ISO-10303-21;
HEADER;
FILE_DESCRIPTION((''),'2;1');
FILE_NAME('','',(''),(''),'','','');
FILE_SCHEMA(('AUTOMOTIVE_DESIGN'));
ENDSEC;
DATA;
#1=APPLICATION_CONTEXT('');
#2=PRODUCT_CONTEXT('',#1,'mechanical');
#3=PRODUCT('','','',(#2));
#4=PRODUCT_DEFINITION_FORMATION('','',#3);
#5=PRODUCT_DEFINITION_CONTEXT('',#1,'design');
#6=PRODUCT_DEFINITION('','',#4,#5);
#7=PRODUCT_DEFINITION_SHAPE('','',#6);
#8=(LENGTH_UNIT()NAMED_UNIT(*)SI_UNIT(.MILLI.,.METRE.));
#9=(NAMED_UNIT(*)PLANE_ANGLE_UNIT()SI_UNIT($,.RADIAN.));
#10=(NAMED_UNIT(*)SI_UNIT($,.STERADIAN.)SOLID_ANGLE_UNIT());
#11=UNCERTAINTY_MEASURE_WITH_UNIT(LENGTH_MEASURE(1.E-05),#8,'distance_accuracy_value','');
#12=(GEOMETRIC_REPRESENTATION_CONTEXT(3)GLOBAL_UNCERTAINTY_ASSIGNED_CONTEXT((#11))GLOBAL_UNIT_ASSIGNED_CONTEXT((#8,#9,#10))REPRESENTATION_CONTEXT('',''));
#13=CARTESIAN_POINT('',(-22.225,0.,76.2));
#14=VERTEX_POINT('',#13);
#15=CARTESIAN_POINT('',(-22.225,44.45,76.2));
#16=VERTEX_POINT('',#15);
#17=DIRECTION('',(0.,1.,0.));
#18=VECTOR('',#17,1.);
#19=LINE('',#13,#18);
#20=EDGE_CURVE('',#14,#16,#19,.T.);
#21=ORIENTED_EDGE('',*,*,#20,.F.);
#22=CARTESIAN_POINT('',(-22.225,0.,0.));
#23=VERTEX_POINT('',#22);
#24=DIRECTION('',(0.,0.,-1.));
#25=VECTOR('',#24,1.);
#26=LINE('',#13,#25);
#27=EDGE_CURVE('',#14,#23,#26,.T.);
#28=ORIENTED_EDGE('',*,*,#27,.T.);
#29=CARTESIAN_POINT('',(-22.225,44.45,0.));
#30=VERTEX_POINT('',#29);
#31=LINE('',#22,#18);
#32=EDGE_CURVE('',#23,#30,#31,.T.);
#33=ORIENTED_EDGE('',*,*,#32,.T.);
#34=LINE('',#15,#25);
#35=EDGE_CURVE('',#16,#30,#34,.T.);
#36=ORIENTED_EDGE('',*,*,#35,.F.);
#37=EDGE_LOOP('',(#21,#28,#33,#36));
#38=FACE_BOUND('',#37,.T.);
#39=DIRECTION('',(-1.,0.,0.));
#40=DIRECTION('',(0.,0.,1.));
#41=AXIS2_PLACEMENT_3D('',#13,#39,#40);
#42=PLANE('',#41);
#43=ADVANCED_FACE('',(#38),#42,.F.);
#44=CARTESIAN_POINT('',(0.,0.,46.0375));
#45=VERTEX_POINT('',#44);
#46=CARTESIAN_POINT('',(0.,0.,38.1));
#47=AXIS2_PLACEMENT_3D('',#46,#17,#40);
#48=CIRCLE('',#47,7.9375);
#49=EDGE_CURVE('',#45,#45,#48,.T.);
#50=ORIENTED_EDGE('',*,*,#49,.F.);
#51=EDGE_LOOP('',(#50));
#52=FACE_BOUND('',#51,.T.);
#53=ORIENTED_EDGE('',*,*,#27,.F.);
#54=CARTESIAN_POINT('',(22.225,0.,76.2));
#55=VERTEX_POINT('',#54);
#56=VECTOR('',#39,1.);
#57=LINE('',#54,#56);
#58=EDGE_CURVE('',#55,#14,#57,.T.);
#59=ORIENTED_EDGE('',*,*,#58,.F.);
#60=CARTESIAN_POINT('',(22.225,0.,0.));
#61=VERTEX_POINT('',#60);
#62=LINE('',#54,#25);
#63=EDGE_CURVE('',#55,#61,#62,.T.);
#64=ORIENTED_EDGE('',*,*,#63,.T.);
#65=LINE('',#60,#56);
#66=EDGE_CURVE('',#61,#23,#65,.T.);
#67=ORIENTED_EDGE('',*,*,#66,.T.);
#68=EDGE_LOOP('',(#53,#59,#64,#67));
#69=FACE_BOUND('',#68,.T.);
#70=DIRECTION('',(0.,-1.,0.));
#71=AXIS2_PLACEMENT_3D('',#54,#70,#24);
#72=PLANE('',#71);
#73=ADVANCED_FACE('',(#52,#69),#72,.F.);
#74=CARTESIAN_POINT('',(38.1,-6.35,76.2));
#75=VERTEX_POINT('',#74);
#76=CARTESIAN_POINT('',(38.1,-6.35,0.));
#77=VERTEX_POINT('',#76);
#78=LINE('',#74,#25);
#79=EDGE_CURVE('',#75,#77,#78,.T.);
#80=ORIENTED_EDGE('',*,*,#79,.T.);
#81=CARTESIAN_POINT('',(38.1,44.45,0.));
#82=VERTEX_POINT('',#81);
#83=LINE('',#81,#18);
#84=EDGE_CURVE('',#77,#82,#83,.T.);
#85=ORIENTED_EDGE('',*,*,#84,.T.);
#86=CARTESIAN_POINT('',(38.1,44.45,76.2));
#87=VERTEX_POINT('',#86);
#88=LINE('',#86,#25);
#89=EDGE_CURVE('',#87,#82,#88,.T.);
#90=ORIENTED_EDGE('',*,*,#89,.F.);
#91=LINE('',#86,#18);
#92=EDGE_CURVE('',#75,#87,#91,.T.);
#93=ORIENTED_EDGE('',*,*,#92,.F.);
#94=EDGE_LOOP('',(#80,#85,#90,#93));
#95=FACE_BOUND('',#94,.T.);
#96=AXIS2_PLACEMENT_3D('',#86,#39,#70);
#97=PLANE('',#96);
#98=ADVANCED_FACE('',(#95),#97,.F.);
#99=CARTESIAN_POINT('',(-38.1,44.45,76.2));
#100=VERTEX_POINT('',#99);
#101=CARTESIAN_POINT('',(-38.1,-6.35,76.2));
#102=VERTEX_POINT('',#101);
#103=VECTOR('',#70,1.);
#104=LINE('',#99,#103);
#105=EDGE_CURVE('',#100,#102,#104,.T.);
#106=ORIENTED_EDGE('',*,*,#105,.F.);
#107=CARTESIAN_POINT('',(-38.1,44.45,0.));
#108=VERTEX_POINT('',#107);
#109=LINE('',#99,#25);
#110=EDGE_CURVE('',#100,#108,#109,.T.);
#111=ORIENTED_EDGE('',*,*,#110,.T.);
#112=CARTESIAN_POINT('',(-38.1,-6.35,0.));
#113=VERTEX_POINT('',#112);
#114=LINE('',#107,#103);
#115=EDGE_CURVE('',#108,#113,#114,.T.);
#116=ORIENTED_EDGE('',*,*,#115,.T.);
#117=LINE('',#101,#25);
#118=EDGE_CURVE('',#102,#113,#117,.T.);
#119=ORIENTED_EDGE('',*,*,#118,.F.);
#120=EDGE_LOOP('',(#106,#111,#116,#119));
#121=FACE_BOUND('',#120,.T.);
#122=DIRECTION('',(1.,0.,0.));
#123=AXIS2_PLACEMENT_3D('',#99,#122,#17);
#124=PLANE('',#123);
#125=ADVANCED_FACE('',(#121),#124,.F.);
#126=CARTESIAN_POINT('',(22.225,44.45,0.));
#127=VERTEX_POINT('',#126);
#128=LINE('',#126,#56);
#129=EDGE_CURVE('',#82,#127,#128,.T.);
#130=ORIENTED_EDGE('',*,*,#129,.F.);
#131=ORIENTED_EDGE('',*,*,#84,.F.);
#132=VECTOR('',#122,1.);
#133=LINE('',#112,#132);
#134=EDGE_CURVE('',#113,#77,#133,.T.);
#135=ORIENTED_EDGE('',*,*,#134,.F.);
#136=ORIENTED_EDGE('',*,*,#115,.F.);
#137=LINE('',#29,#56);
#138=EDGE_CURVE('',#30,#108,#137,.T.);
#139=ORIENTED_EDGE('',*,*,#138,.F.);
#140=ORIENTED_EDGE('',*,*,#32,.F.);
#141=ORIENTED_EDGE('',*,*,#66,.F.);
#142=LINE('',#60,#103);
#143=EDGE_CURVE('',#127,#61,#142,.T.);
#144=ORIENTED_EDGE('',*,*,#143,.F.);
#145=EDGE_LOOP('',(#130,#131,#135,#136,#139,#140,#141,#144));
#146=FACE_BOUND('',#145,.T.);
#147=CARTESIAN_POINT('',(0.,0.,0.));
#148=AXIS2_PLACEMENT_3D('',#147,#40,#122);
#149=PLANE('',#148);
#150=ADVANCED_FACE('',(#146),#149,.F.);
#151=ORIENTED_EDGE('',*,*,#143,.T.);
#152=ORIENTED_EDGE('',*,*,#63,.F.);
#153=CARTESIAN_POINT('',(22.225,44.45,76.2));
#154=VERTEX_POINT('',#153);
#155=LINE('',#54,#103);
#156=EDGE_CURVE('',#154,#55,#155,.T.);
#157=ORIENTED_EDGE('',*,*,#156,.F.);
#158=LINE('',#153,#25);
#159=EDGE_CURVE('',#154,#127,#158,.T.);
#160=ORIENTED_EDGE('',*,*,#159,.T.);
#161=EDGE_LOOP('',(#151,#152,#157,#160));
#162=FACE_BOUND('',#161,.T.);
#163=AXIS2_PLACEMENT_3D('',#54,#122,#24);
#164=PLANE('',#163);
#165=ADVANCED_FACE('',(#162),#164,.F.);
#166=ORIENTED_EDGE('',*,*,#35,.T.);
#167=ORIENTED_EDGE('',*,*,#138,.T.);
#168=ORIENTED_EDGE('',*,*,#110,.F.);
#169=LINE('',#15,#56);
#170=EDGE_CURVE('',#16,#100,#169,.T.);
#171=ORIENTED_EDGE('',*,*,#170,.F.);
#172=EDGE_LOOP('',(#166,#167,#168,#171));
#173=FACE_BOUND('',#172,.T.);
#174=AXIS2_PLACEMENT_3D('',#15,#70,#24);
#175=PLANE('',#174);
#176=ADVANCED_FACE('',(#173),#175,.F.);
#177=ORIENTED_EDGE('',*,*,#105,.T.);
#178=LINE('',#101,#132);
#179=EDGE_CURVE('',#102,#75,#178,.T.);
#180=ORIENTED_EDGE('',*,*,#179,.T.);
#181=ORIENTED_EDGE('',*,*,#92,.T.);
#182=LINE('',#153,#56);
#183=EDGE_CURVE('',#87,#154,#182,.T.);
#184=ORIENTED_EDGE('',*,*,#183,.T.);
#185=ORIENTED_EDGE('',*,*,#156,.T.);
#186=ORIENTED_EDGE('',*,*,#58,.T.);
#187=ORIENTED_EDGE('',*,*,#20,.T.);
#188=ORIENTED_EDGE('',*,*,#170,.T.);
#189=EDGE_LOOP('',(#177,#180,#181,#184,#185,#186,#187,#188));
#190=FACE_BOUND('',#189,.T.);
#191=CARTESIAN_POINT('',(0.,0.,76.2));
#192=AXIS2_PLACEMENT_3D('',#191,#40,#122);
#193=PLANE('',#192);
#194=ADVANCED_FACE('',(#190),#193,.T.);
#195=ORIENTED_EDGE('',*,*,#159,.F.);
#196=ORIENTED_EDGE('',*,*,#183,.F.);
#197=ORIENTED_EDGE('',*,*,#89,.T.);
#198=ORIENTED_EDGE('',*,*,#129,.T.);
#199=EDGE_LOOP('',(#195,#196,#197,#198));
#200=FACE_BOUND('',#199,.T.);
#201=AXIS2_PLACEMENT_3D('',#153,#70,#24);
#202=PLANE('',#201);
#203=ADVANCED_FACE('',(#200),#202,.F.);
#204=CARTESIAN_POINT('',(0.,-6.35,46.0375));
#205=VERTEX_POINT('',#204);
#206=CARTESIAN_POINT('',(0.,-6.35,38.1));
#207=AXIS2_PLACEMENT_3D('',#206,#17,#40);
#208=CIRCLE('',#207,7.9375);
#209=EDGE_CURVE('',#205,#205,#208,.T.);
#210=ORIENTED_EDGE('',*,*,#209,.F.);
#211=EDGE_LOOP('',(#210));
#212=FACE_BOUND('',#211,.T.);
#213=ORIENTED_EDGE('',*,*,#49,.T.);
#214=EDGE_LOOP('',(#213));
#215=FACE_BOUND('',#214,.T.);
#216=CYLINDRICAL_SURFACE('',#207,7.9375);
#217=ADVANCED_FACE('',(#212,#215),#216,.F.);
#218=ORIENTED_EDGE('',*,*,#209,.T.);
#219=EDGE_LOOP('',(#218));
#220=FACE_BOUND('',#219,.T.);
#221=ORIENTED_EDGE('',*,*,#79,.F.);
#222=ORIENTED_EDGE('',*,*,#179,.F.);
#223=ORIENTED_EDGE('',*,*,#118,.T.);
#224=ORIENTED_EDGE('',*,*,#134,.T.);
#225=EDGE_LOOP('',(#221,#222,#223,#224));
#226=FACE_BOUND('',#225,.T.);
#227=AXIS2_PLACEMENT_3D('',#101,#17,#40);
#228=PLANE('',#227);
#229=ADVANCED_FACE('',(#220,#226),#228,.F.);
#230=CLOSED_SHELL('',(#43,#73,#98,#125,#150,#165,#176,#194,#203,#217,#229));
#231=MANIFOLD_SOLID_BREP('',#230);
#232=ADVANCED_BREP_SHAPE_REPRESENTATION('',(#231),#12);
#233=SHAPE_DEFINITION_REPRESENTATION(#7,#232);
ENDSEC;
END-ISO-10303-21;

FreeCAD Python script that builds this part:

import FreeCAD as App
import Part
import Sketcher

V = App.Vector
Q = App.Units.Quantity

doc = App.newDocument("Part")
body = doc.addObject("PartDesign::Body", "Body")

sketch1 = doc.addObject("Sketcher::SketchObject", "Sketch")
body.addObject(sketch1)
sketch1.AttachmentSupport = (doc.XY_Plane, [""])
sketch1.MapMode = "FlatFace"
sketch1.addGeometry([
    Part.LineSegment(V(22.225, 0, 0), V(-22.225, 0, 0)),
    Part.LineSegment(V(-22.225, 0, 0), V(-22.225, 44.45, 0)),
    Part.LineSegment(V(-22.225, 44.45, 0), V(-38.1, 44.45, 0)),
    Part.LineSegment(V(-38.1, 44.45, 0), V(-38.1, -6.35, 0)),
    Part.LineSegment(V(-38.1, -6.35, 0), V(38.1, -6.35, 0)),
    Part.LineSegment(V(38.1, -6.35, 0), V(38.1, 44.45, 0)),
    Part.LineSegment(V(38.1, 44.45, 0), V(22.225, 44.45, 0)),
    Part.LineSegment(V(22.225, 44.45, 0), V(22.225, 0, 0)),
], False)
sketch1.addConstraint([
    Sketcher.Constraint("Coincident", 0, 2, 1, 1),
    Sketcher.Constraint("Coincident", 1, 2, 2, 1),
    Sketcher.Constraint("Coincident", 2, 2, 3, 1),
    Sketcher.Constraint("Coincident", 3, 2, 4, 1),
    Sketcher.Constraint("Coincident", 4, 2, 5, 1),
    Sketcher.Constraint("Coincident", 5, 2, 6, 1),
    Sketcher.Constraint("Coincident", 6, 2, 7, 1),
    Sketcher.Constraint("Coincident", 7, 2, 0, 1),
    Sketcher.Constraint("Horizontal", 0),
    Sketcher.Constraint("Vertical", 1),
    Sketcher.Constraint("Horizontal", 2),
    Sketcher.Constraint("Vertical", 3),
    Sketcher.Constraint("Horizontal", 4),
    Sketcher.Constraint("Vertical", 5),
    Sketcher.Constraint("Horizontal", 6),
    Sketcher.Constraint("Vertical", 7),
    Sketcher.Constraint("Symmetric", 0, 2, 7, 2, -1, 1),
    Sketcher.Constraint("Symmetric", 2, 2, 5, 2, -2),
    Sketcher.Constraint("Equal", 0, 1),
    Sketcher.Constraint("DistanceX", 4, 1, 4, 2, Q("3 in")),
    Sketcher.Constraint("DistanceY", 3, 2, 3, 1, Q("2 in")),
    Sketcher.Constraint("DistanceX", 0, 2, 0, 1, Q("1.75 in")),
])
pad1 = doc.addObject("PartDesign::Pad", "Pad")
body.addObject(pad1)
pad1.Profile = sketch1
pad1.Length = Q("3 in")

sketch2 = doc.addObject("Sketcher::SketchObject", "Sketch001")
body.addObject(sketch2)
sketch2.AttachmentSupport = (doc.XZ_Plane, [""])
sketch2.MapMode = "FlatFace"
sketch2.addGeometry(Part.Circle(V(0, 38.1, 0), V(0, 0, 1), 7.9375), False)
sketch2.addConstraint([
    Sketcher.Constraint("PointOnObject", 0, 3, -2),
    Sketcher.Constraint("Diameter", 0, Q("0.625 in")),
    Sketcher.Constraint("DistanceY", -1, 1, 0, 3, Q("1.5 in")),
])
pocket1 = doc.addObject("PartDesign::Pocket", "Pocket")
body.addObject(pocket1)
pocket1.Profile = sketch2
pocket1.Type = "ThroughAll"
pocket1.Reversed = True

doc.recompute()
